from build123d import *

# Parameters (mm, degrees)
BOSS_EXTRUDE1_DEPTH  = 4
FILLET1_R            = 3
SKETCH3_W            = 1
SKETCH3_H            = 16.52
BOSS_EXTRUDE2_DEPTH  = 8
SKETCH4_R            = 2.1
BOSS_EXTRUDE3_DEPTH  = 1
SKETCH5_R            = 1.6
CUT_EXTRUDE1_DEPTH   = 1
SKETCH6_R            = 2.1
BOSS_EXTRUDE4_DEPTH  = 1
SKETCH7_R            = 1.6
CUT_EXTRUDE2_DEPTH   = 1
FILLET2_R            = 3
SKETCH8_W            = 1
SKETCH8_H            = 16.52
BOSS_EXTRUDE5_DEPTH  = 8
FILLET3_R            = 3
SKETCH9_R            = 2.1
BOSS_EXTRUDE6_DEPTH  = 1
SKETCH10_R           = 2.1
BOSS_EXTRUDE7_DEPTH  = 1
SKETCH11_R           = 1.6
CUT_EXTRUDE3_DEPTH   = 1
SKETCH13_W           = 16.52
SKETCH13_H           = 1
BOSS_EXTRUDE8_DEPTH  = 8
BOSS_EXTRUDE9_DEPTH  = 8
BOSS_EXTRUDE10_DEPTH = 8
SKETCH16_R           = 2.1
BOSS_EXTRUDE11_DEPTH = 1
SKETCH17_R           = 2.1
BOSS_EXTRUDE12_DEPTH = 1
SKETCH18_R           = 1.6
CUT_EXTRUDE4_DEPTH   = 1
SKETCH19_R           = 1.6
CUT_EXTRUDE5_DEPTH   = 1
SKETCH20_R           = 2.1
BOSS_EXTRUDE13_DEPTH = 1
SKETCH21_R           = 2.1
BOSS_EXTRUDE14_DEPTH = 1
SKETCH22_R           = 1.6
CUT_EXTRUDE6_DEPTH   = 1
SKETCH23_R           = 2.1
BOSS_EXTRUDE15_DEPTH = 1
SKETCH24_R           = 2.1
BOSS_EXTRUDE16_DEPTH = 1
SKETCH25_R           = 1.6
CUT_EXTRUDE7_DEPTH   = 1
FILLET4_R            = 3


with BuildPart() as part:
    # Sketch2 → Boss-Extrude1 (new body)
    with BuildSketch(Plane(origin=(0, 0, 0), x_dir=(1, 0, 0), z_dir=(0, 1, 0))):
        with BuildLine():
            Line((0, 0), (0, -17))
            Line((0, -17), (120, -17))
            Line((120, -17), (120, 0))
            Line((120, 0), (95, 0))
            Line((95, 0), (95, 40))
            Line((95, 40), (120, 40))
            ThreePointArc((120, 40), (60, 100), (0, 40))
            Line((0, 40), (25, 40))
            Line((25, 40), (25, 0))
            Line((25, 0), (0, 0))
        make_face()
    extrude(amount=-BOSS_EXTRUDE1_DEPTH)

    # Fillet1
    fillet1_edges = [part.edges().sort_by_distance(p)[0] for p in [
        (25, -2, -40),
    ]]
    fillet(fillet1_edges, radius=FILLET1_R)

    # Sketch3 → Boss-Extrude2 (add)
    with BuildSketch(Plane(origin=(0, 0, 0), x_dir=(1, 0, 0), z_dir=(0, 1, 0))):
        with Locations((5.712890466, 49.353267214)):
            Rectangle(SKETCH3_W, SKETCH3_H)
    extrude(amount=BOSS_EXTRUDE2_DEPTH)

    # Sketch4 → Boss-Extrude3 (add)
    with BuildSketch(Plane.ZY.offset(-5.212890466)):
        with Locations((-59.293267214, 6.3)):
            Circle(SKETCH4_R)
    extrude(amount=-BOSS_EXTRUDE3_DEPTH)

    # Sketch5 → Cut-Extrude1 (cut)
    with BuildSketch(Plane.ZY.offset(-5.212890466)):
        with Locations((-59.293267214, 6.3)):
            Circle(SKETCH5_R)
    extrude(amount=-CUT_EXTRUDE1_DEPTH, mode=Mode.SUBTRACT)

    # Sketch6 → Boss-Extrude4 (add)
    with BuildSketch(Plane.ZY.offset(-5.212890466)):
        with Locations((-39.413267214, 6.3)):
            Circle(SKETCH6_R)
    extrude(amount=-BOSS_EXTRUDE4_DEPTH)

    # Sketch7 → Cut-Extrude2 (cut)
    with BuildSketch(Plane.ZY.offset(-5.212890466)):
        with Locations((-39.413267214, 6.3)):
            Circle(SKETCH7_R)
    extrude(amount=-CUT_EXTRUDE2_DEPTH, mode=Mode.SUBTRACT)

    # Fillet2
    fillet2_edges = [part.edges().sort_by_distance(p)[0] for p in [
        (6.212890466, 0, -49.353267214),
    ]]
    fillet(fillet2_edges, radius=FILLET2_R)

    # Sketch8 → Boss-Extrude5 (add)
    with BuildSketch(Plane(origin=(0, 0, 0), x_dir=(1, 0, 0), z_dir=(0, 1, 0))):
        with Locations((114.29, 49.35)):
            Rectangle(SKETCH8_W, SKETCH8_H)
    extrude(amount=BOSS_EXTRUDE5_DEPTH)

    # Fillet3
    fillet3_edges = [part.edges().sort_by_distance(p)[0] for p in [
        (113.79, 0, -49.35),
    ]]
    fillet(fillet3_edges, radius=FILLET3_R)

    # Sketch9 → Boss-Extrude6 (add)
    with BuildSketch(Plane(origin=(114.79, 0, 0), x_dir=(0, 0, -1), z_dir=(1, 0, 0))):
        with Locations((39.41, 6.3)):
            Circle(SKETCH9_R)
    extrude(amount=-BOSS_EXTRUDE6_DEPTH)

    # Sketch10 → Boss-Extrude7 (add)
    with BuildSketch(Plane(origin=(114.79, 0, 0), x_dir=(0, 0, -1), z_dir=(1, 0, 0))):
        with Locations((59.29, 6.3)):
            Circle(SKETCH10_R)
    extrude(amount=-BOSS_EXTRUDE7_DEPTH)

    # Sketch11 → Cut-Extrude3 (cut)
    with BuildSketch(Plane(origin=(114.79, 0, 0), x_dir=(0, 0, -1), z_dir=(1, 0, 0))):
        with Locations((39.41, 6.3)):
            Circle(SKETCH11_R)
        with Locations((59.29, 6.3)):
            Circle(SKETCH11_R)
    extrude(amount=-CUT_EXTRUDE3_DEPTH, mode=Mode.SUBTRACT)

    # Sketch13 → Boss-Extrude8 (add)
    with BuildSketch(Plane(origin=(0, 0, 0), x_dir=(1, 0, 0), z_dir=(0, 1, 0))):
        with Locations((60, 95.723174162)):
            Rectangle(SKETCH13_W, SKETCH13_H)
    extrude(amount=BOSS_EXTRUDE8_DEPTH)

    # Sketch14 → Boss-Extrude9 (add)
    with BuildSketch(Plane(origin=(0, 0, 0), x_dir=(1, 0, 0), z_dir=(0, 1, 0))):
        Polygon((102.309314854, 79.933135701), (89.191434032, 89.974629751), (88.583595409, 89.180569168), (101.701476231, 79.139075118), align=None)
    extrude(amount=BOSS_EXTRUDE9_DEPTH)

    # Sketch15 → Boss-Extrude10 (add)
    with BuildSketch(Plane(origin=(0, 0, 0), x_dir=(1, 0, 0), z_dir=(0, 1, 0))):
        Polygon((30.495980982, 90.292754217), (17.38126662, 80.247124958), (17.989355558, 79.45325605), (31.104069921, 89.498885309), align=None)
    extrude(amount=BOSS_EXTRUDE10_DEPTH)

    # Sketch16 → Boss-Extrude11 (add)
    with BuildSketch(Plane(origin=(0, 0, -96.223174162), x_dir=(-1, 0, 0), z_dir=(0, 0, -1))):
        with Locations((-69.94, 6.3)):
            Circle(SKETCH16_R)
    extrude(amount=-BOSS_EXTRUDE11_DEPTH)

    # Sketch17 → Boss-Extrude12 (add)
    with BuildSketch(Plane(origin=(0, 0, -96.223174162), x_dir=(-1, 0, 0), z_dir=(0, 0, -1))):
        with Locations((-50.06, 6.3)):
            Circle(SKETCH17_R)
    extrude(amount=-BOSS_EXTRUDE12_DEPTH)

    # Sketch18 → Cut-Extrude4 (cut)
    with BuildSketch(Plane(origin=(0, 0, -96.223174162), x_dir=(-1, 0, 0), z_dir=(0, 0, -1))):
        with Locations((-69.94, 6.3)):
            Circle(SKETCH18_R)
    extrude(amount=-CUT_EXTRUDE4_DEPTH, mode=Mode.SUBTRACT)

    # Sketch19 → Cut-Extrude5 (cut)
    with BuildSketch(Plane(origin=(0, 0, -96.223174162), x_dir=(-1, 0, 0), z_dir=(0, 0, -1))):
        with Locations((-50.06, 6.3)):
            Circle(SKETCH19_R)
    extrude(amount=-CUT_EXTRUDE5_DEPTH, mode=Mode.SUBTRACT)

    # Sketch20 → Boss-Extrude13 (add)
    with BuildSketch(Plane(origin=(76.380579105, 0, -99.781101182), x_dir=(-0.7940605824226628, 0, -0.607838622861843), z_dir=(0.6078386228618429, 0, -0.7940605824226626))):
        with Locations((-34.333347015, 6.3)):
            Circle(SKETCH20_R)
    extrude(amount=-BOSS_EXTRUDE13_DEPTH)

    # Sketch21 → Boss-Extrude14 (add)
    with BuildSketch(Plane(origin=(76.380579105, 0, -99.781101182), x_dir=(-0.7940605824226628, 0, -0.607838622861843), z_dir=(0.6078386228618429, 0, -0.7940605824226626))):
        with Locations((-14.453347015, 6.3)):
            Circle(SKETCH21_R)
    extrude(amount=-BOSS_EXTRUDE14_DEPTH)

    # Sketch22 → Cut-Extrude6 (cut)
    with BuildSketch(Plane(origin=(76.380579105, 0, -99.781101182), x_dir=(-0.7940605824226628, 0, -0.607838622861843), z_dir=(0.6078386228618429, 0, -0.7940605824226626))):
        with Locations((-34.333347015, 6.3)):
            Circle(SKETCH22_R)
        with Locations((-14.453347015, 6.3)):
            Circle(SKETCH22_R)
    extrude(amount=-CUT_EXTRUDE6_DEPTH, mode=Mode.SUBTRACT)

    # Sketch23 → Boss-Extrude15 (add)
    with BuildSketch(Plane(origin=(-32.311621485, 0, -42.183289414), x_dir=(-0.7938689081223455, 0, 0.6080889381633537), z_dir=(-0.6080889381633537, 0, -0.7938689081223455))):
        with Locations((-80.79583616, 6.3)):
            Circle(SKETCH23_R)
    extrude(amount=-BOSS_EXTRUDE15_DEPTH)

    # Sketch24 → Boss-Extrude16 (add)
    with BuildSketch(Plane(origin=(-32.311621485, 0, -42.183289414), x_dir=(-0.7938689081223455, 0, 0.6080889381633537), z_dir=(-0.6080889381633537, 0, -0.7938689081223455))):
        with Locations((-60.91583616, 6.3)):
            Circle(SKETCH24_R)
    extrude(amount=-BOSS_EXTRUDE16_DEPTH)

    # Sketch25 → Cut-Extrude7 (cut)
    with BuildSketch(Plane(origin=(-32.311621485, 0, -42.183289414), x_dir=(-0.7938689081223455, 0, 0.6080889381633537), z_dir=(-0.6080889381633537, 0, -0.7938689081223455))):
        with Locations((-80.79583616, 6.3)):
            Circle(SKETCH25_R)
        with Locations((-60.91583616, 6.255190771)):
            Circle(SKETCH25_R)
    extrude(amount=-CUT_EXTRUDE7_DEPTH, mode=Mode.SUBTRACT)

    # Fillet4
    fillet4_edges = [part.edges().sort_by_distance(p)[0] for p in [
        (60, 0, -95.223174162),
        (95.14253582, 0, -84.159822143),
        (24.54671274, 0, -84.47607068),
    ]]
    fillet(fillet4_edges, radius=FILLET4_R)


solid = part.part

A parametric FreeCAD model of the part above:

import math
import FreeCAD as App
import Part
import Sketcher
from FreeCAD import Vector
Q = App.Units.Quantity


def edges_at(feature, points):
    """Names of the edges that pass closest to the given points."""
    edges = feature.Shape.Edges
    near = lambda p: min(range(len(edges)), key=lambda i: edges[i].distToShape(Part.Vertex(*p))[0])
    return sorted({f"Edge{near(p) + 1}" for p in points})

doc = App.newDocument("Part")
body = doc.addObject("PartDesign::Body", "Body")

# Sketch on XZ plane
sketch1 = doc.addObject("Sketcher::SketchObject", "Sketch")
body.addObject(sketch1)
sketch1.AttachmentSupport = (doc.XZ_Plane, [""])
sketch1.MapMode = "FlatFace"
sketch1.addGeometry([
    Part.LineSegment(Vector(0, 0, 0), Vector(0, 17, 0)),  # 0
    Part.LineSegment(Vector(0, 17, 0), Vector(120, 17, 0)),  # 1
    Part.LineSegment(Vector(120, 17, 0), Vector(120, 0, 0)),  # 2
    Part.LineSegment(Vector(120, 0, 0), Vector(95, 0, 0)),  # 3
    Part.LineSegment(Vector(95, 0, 0), Vector(95, -40, 0)),  # 4
    Part.LineSegment(Vector(95, -40, 0), Vector(120, -40, 0)),  # 5
    Part.ArcOfCircle(Part.Circle(Vector(60, -40, 0), Vector(0, 0, 1), 60), math.radians(180), math.radians(360)),  # 6
    Part.LineSegment(Vector(0, -40, 0), Vector(25, -40, 0)),  # 7
    Part.LineSegment(Vector(25, -40, 0), Vector(25, 0, 0)),  # 8
    Part.LineSegment(Vector(25, 0, 0), Vector(0, 0, 0)),  # 9
], False)
sketch1.addConstraint([
    Sketcher.Constraint("Coincident", 0, 2, 1, 1),
    Sketcher.Constraint("Coincident", 1, 2, 2, 1),
    Sketcher.Constraint("Coincident", 2, 2, 3, 1),
    Sketcher.Constraint("Coincident", 3, 2, 4, 1),
    Sketcher.Constraint("Coincident", 4, 2, 5, 1),
    Sketcher.Constraint("Coincident", 5, 2, 6, 2),
    Sketcher.Constraint("Coincident", 6, 1, 7, 1),
    Sketcher.Constraint("Coincident", 7, 2, 8, 1),
    Sketcher.Constraint("Coincident", 8, 2, 9, 1),
    Sketcher.Constraint("Coincident", 9, 2, 0, 1),
    Sketcher.Constraint("Vertical", 0),
    Sketcher.Constraint("Horizontal", 1),
    Sketcher.Constraint("Vertical", 2),
    Sketcher.Constraint("Horizontal", 3),
    Sketcher.Constraint("Vertical", 4),
    Sketcher.Constraint("Horizontal", 5),
    Sketcher.Constraint("Horizontal", 7),
    Sketcher.Constraint("Vertical", 8),
    Sketcher.Constraint("Horizontal", 9),
    Sketcher.Constraint("Coincident", 9, 2, -1, 1),
    Sketcher.Constraint("PointOnObject", 2, 2, -1),
    Sketcher.Constraint("PointOnObject", 6, 1, -2),
    Sketcher.Constraint("Horizontal", 6, 3, 4, 2),
    Sketcher.Constraint("Horizontal", 5, 2, 6, 1),
    Sketcher.Constraint("Vertical", 2, 2, 5, 2),
    Sketcher.Constraint("Equal", 5, 7),
    Sketcher.Constraint("Radius", 6, Q("60 mm")),
    Sketcher.Constraint("DistanceX", 3, 2, 3, 1, Q("25 mm")),
    Sketcher.Constraint("DistanceY", 0, 1, 0, 2, Q("17 mm")),
    Sketcher.Constraint("DistanceY", 4, 2, 4, 1, Q("40 mm")),
])
pad1 = doc.addObject("PartDesign::Pad", "Pad")
body.addObject(pad1)
pad1.Profile = sketch1
pad1.Length = 4
doc.recompute()

fillet = doc.addObject("PartDesign::Fillet", "Fillet")
body.addObject(fillet)
fillet.Base = (pad1, edges_at(pad1, [(25, -2, -40)]))
fillet.Radius = 3

# Sketch on XZ plane
sketch2 = doc.addObject("Sketcher::SketchObject", "Sketch001")
body.addObject(sketch2)
sketch2.AttachmentSupport = (doc.XZ_Plane, [""])
sketch2.MapMode = "FlatFace"
sketch2.addGeometry([
    Part.LineSegment(Vector(5.2, -57.6, 0), Vector(5.2, -41.1, 0)),
    Part.LineSegment(Vector(5.2, -41.1, 0), Vector(6.2, -41.1, 0)),
    Part.LineSegment(Vector(6.2, -41.1, 0), Vector(6.2, -57.6, 0)),
    Part.LineSegment(Vector(6.2, -57.6, 0), Vector(5.2, -57.6, 0)),
], False)
sketch2.addConstraint([
    Sketcher.Constraint("Coincident", 0, 2, 1, 1),
    Sketcher.Constraint("Coincident", 1, 2, 2, 1),
    Sketcher.Constraint("Coincident", 2, 2, 3, 1),
    Sketcher.Constraint("Coincident", 3, 2, 0, 1),
    Sketcher.Constraint("Vertical", 0),
    Sketcher.Constraint("Horizontal", 1),
    Sketcher.Constraint("Vertical", 2),
    Sketcher.Constraint("Horizontal", 3),
    Sketcher.Constraint("DistanceX", 1, 1, 1, 2, Q("1 mm")),
    Sketcher.Constraint("DistanceY", 0, 1, 0, 2, Q("16.52 mm")),
    Sketcher.Constraint("DistanceX", -1, 1, 0, 2, Q("5.21289 mm")),
    Sketcher.Constraint("DistanceY", 0, 2, -1, 1, Q("41.093267 mm")),
])
pad2 = doc.addObject("PartDesign::Pad", "Pad001")
body.addObject(pad2)
pad2.Profile = sketch2
pad2.Length = 8
pad2.Reversed = True

# Sketch on YZ plane
sketch3 = doc.addObject("Sketcher::SketchObject", "Sketch002")
body.addObject(sketch3)
sketch3.AttachmentSupport = (doc.YZ_Plane, [""])
sketch3.MapMode = "FlatFace"
sketch3.AttachmentOffset = App.Placement(Vector(0, 0, 5.21289), App.Rotation())
sketch3.addGeometry(Part.Circle(Vector(6.3, -59.3, 0), Vector(0, 0, 1), 2.1), False)
sketch3.addConstraint([
    Sketcher.Constraint("Diameter", 0, Q("4.2 mm")),
    Sketcher.Constraint("DistanceX", -1, 1, 0, 3, Q("6.3 mm")),
    Sketcher.Constraint("DistanceY", 0, 3, -1, 1, Q("59.293267 mm")),
])
pad3 = doc.addObject("PartDesign::Pad", "Pad002")
body.addObject(pad3)
pad3.Profile = sketch3
pad3.Length = 1

# Sketch on YZ plane
sketch4 = doc.addObject("Sketcher::SketchObject", "Sketch003")
body.addObject(sketch4)
sketch4.AttachmentSupport = (doc.YZ_Plane, [""])
sketch4.MapMode = "FlatFace"
sketch4.AttachmentOffset = App.Placement(Vector(0, 0, 5.21289), App.Rotation())
sketch4.addGeometry(Part.Circle(Vector(6.3, -59.3, 0), Vector(0, 0, 1), 1.6), False)
sketch4.addConstraint([
    Sketcher.Constraint("Diameter", 0, Q("3.2 mm")),
    Sketcher.Constraint("DistanceX", -1, 1, 0, 3, Q("6.3 mm")),
    Sketcher.Constraint("DistanceY", 0, 3, -1, 1, Q("59.293267 mm")),
])
pocket1 = doc.addObject("PartDesign::Pocket", "Pocket")
body.addObject(pocket1)
pocket1.Profile = sketch4
pocket1.Length = 1
pocket1.Reversed = True

# Sketch on YZ plane
sketch5 = doc.addObject("Sketcher::SketchObject", "Sketch004")
body.addObject(sketch5)
sketch5.AttachmentSupport = (doc.YZ_Plane, [""])
sketch5.MapMode = "FlatFace"
sketch5.AttachmentOffset = App.Placement(Vector(0, 0, 5.21289), App.Rotation())
sketch5.addGeometry(Part.Circle(Vector(6.3, -39.4, 0), Vector(0, 0, 1), 2.1), False)
sketch5.addConstraint([
    Sketcher.Constraint("Diameter", 0, Q("4.2 mm")),
    Sketcher.Constraint("DistanceX", -1, 1, 0, 3, Q("6.3 mm")),
    Sketcher.Constraint("DistanceY", 0, 3, -1, 1, Q("39.413267 mm")),
])
pad4 = doc.addObject("PartDesign::Pad", "Pad003")
body.addObject(pad4)
pad4.Profile = sketch5
pad4.Length = 1

# Sketch on YZ plane
sketch6 = doc.addObject("Sketcher::SketchObject", "Sketch005")
body.addObject(sketch6)
sketch6.AttachmentSupport = (doc.YZ_Plane, [""])
sketch6.MapMode = "FlatFace"
sketch6.AttachmentOffset = App.Placement(Vector(0, 0, 5.21289), App.Rotation())
sketch6.addGeometry(Part.Circle(Vector(6.3, -39.4, 0), Vector(0, 0, 1), 1.6), False)
sketch6.addConstraint([
    Sketcher.Constraint("Diameter", 0, Q("3.2 mm")),
    Sketcher.Constraint("DistanceX", -1, 1, 0, 3, Q("6.3 mm")),
    Sketcher.Constraint("DistanceY", 0, 3, -1, 1, Q("39.413267 mm")),
])
pocket2 = doc.addObject("PartDesign::Pocket", "Pocket001")
body.addObject(pocket2)
pocket2.Profile = sketch6
pocket2.Length = 1
pocket2.Reversed = True
doc.recompute()

fillet2 = doc.addObject("PartDesign::Fillet", "Fillet001")
body.addObject(fillet2)
fillet2.Base = (pocket2, edges_at(pocket2, [(6.213, 0, -49.353)]))
fillet2.Radius = 3

# Sketch on XZ plane
sketch7 = doc.addObject("Sketcher::SketchObject", "Sketch006")
body.addObject(sketch7)
sketch7.AttachmentSupport = (doc.XZ_Plane, [""])
sketch7.MapMode = "FlatFace"
sketch7.addGeometry([
    Part.LineSegment(Vector(113.8, -57.6, 0), Vector(113.8, -41.1, 0)),
    Part.LineSegment(Vector(113.8, -41.1, 0), Vector(114.8, -41.1, 0)),
    Part.LineSegment(Vector(114.8, -41.1, 0), Vector(114.8, -57.6, 0)),
    Part.LineSegment(Vector(114.8, -57.6, 0), Vector(113.8, -57.6, 0)),
], False)
sketch7.addConstraint([
    Sketcher.Constraint("Coincident", 0, 2, 1, 1),
    Sketcher.Constraint("Coincident", 1, 2, 2, 1),
    Sketcher.Constraint("Coincident", 2, 2, 3, 1),
    Sketcher.Constraint("Coincident", 3, 2, 0, 1),
    Sketcher.Constraint("Vertical", 0),
    Sketcher.Constraint("Horizontal", 1),
    Sketcher.Constraint("Vertical", 2),
    Sketcher.Constraint("Horizontal", 3),
    Sketcher.Constraint("DistanceX", 1, 1, 1, 2, Q("1 mm")),
    Sketcher.Constraint("DistanceY", 0, 1, 0, 2, Q("16.52 mm")),
    Sketcher.Constraint("DistanceX", -1, 1, 0, 2, Q("113.79 mm")),
    Sketcher.Constraint("DistanceY", 0, 2, -1, 1, Q("41.09 mm")),
])
pad5 = doc.addObject("PartDesign::Pad", "Pad004")
body.addObject(pad5)
pad5.Profile = sketch7
pad5.Length = 8
pad5.Reversed = True
doc.recompute()

fillet3 = doc.addObject("PartDesign::Fillet", "Fillet002")
body.addObject(fillet3)
fillet3.Base = (pad5, edges_at(pad5, [(113.79, 0, -49.35)]))
fillet3.Radius = 3

# Sketch on YZ plane
sketch8 = doc.addObject("Sketcher::SketchObject", "Sketch007")
body.addObject(sketch8)
sketch8.AttachmentSupport = (doc.YZ_Plane, [""])
sketch8.MapMode = "FlatFace"
sketch8.AttachmentOffset = App.Placement(Vector(0, 0, 114.79), App.Rotation())
sketch8.addGeometry(Part.Circle(Vector(6.3, -39.4, 0), Vector(0, 0, 1), 2.1), False)
sketch8.addConstraint([
    Sketcher.Constraint("Diameter", 0, Q("4.2 mm")),
    Sketcher.Constraint("DistanceX", -1, 1, 0, 3, Q("6.3 mm")),
    Sketcher.Constraint("DistanceY", 0, 3, -1, 1, Q("39.41 mm")),
])
pad6 = doc.addObject("PartDesign::Pad", "Pad005")
body.addObject(pad6)
pad6.Profile = sketch8
pad6.Length = 1
pad6.Reversed = True

# Sketch on YZ plane
sketch9 = doc.addObject("Sketcher::SketchObject", "Sketch008")
body.addObject(sketch9)
sketch9.AttachmentSupport = (doc.YZ_Plane, [""])
sketch9.MapMode = "FlatFace"
sketch9.AttachmentOffset = App.Placement(Vector(0, 0, 114.79), App.Rotation())
sketch9.addGeometry(Part.Circle(Vector(6.3, -59.3, 0), Vector(0, 0, 1), 2.1), False)
sketch9.addConstraint([
    Sketcher.Constraint("Diameter", 0, Q("4.2 mm")),
    Sketcher.Constraint("DistanceX", -1, 1, 0, 3, Q("6.3 mm")),
    Sketcher.Constraint("DistanceY", 0, 3, -1, 1, Q("59.29 mm")),
])
pad7 = doc.addObject("PartDesign::Pad", "Pad006")
body.addObject(pad7)
pad7.Profile = sketch9
pad7.Length = 1
pad7.Reversed = True

# Sketch on YZ plane
sketch10 = doc.addObject("Sketcher::SketchObject", "Sketch009")
body.addObject(sketch10)
sketch10.AttachmentSupport = (doc.YZ_Plane, [""])
sketch10.MapMode = "FlatFace"
sketch10.AttachmentOffset = App.Placement(Vector(0, 0, 114.79), App.Rotation())
sketch10.addGeometry([
    Part.Circle(Vector(6.3, -39.4, 0), Vector(0, 0, 1), 1.6),
    Part.Circle(Vector(6.3, -59.3, 0), Vector(0, 0, 1), 1.6),
], False)
sketch10.addConstraint([
    Sketcher.Constraint("Equal", 0, 1),
    Sketcher.Constraint("Vertical", 0, 3, 1, 3),
    Sketcher.Constraint("Diameter", 0, Q("3.2 mm")),
    Sketcher.Constraint("DistanceX", -1, 1, 0, 3, Q("6.3 mm")),
    Sketcher.Constraint("DistanceY", 0, 3, -1, 1, Q("39.41 mm")),
    Sketcher.Constraint("DistanceY", 1, 3, -1, 1, Q("59.29 mm")),
])
pocket3 = doc.addObject("PartDesign::Pocket", "Pocket002")
body.addObject(pocket3)
pocket3.Profile = sketch10
pocket3.Length = 1

# Sketch on XZ plane
sketch11 = doc.addObject("Sketcher::SketchObject", "Sketch010")
body.addObject(sketch11)
sketch11.AttachmentSupport = (doc.XZ_Plane, [""])
sketch11.MapMode = "FlatFace"
sketch11.addGeometry([
    Part.LineSegment(Vector(51.7, -96.2, 0), Vector(51.7, -95.2, 0)),
    Part.LineSegment(Vector(51.7, -95.2, 0), Vector(68.3, -95.2, 0)),
    Part.LineSegment(Vector(68.3, -95.2, 0), Vector(68.3, -96.2, 0)),
    Part.LineSegment(Vector(68.3, -96.2, 0), Vector(51.7, -96.2, 0)),
], False)
sketch11.addConstraint([
    Sketcher.Constraint("Coincident", 0, 2, 1, 1),
    Sketcher.Constraint("Coincident", 1, 2, 2, 1),
    Sketcher.Constraint("Coincident", 2, 2, 3, 1),
    Sketcher.Constraint("Coincident", 3, 2, 0, 1),
    Sketcher.Constraint("Vertical", 0),
    Sketcher.Constraint("Horizontal", 1),
    Sketcher.Constraint("Vertical", 2),
    Sketcher.Constraint("Horizontal", 3),
    Sketcher.Constraint("DistanceY", 0, 1, 0, 2, Q("1 mm")),
    Sketcher.Constraint("DistanceX", 1, 1, 1, 2, Q("16.52 mm")),
    Sketcher.Constraint("DistanceX", -1, 1, 0, 2, Q("51.74 mm")),
    Sketcher.Constraint("DistanceY", 0, 2, -1, 1, Q("95.223174 mm")),
])
pad8 = doc.addObject("PartDesign::Pad", "Pad007")
body.addObject(pad8)
pad8.Profile = sketch11
pad8.Length = 8
pad8.Reversed = True

# Sketch on XZ plane
sketch12 = doc.addObject("Sketcher::SketchObject", "Sketch011")
body.addObject(sketch12)
sketch12.AttachmentSupport = (doc.XZ_Plane, [""])
sketch12.MapMode = "FlatFace"
sketch12.addGeometry([
    Part.LineSegment(Vector(102.3, -79.9, 0), Vector(89.2, -90, 0)),
    Part.LineSegment(Vector(89.2, -90, 0), Vector(88.6, -89.2, 0)),
    Part.LineSegment(Vector(88.6, -89.2, 0), Vector(101.7, -79.1, 0)),
    Part.LineSegment(Vector(101.7, -79.1, 0), Vector(102.3, -79.9, 0)),
], False)
sketch12.addConstraint([
    Sketcher.Constraint("Coincident", 0, 2, 1, 1),
    Sketcher.Constraint("Coincident", 1, 2, 2, 1),
    Sketcher.Constraint("Coincident", 2, 2, 3, 1),
    Sketcher.Constraint("Coincident", 3, 2, 0, 1),
    Sketcher.Constraint("Perpendicular", 0, 1),
    Sketcher.Constraint("Perpendicular", 1, 2),
    Sketcher.Constraint("Perpendicular", 2, 3),
    Sketcher.Constraint("Distance", 1, Q("1 mm")),
    Sketcher.Constraint("Distance", 0, Q("16.52 mm")),
    Sketcher.Constraint("DistanceY", 0, 2, -1, 1, Q("89.97463 mm")),
    Sketcher.Constraint("DistanceY", 1, 2, -1, 1, Q("89.180569 mm")),
    Sketcher.Constraint("DistanceX", -1, 1, 0, 2, Q("89.191434 mm")),
])
pad9 = doc.addObject("PartDesign::Pad", "Pad008")
body.addObject(pad9)
pad9.Profile = sketch12
pad9.Length = 8
pad9.Reversed = True

# Sketch on XZ plane
sketch13 = doc.addObject("Sketcher::SketchObject", "Sketch012")
body.addObject(sketch13)
sketch13.AttachmentSupport = (doc.XZ_Plane, [""])
sketch13.MapMode = "FlatFace"
sketch13.addGeometry([
    Part.LineSegment(Vector(30.5, -90.3, 0), Vector(17.4, -80.2, 0)),
    Part.LineSegment(Vector(17.4, -80.2, 0), Vector(18, -79.5, 0)),
    Part.LineSegment(Vector(18, -79.5, 0), Vector(31.1, -89.5, 0)),
    Part.LineSegment(Vector(31.1, -89.5, 0), Vector(30.5, -90.3, 0)),
], False)
sketch13.addConstraint([
    Sketcher.Constraint("Coincident", 0, 2, 1, 1),
    Sketcher.Constraint("Coincident", 1, 2, 2, 1),
    Sketcher.Constraint("Coincident", 2, 2, 3, 1),
    Sketcher.Constraint("Coincident", 3, 2, 0, 1),
    Sketcher.Constraint("Perpendicular", 0, 1),
    Sketcher.Constraint("Perpendicular", 1, 2),
    Sketcher.Constraint("Perpendicular", 2, 3),
    Sketcher.Constraint("Distance", 1, Q("1 mm")),
    Sketcher.Constraint("Distance", 0, Q("16.52 mm")),
    Sketcher.Constraint("DistanceY", 3, 2, 1, 2, Q("10.839498 mm")),
    Sketcher.Constraint("DistanceX", -1, 1, 2, 2, Q("31.10407 mm")),
    Sketcher.Constraint("DistanceY", 0, 2, -1, 1, Q("80.247125 mm")),
])
pad10 = doc.addObject("PartDesign::Pad", "Pad009")
body.addObject(pad10)
pad10.Profile = sketch13
pad10.Length = 8
pad10.Reversed = True

# Sketch on XY plane
sketch14 = doc.addObject("Sketcher::SketchObject", "Sketch013")
body.addObject(sketch14)
sketch14.AttachmentSupport = (doc.XY_Plane, [""])
sketch14.MapMode = "FlatFace"
sketch14.AttachmentOffset = App.Placement(Vector(0, 0, -96.223174), App.Rotation())
sketch14.addGeometry(Part.Circle(Vector(69.9, 6.3, 0), Vector(0, 0, 1), 2.1), False)
sketch14.addConstraint([
    Sketcher.Constraint("Diameter", 0, Q("4.2 mm")),
    Sketcher.Constraint("DistanceY", -1, 1, 0, 3, Q("6.3 mm")),
    Sketcher.Constraint("DistanceX", -1, 1, 0, 3, Q("69.94 mm")),
])
pad11 = doc.addObject("PartDesign::Pad", "Pad010")
body.addObject(pad11)
pad11.Profile = sketch14
pad11.Length = 1

# Sketch on XY plane
sketch15 = doc.addObject("Sketcher::SketchObject", "Sketch014")
body.addObject(sketch15)
sketch15.AttachmentSupport = (doc.XY_Plane, [""])
sketch15.MapMode = "FlatFace"
sketch15.AttachmentOffset = App.Placement(Vector(0, 0, -96.223174), App.Rotation())
sketch15.addGeometry(Part.Circle(Vector(50.1, 6.3, 0), Vector(0, 0, 1), 2.1), False)
sketch15.addConstraint([
    Sketcher.Constraint("Diameter", 0, Q("4.2 mm")),
    Sketcher.Constraint("DistanceY", -1, 1, 0, 3, Q("6.3 mm")),
    Sketcher.Constraint("DistanceX", -1, 1, 0, 3, Q("50.06 mm")),
])
pad12 = doc.addObject("PartDesign::Pad", "Pad011")
body.addObject(pad12)
pad12.Profile = sketch15
pad12.Length = 1

# Sketch on XY plane
sketch16 = doc.addObject("Sketcher::SketchObject", "Sketch015")
body.addObject(sketch16)
sketch16.AttachmentSupport = (doc.XY_Plane, [""])
sketch16.MapMode = "FlatFace"
sketch16.AttachmentOffset = App.Placement(Vector(0, 0, -96.223174), App.Rotation())
sketch16.addGeometry(Part.Circle(Vector(69.9, 6.3, 0), Vector(0, 0, 1), 1.6), False)
sketch16.addConstraint([
    Sketcher.Constraint("Diameter", 0, Q("3.2 mm")),
    Sketcher.Constraint("DistanceY", -1, 1, 0, 3, Q("6.3 mm")),
    Sketcher.Constraint("DistanceX", -1, 1, 0, 3, Q("69.94 mm")),
])
pocket4 = doc.addObject("PartDesign::Pocket", "Pocket003")
body.addObject(pocket4)
pocket4.Profile = sketch16
pocket4.Length = 1
pocket4.Reversed = True

# Sketch on XY plane
sketch17 = doc.addObject("Sketcher::SketchObject", "Sketch016")
body.addObject(sketch17)
sketch17.AttachmentSupport = (doc.XY_Plane, [""])
sketch17.MapMode = "FlatFace"
sketch17.AttachmentOffset = App.Placement(Vector(0, 0, -96.223174), App.Rotation())
sketch17.addGeometry(Part.Circle(Vector(50.1, 6.3, 0), Vector(0, 0, 1), 1.6), False)
sketch17.addConstraint([
    Sketcher.Constraint("Diameter", 0, Q("3.2 mm")),
    Sketcher.Constraint("DistanceY", -1, 1, 0, 3, Q("6.3 mm")),
    Sketcher.Constraint("DistanceX", -1, 1, 0, 3, Q("50.06 mm")),
])
pocket5 = doc.addObject("PartDesign::Pocket", "Pocket004")
body.addObject(pocket5)
pocket5.Profile = sketch17
pocket5.Length = 1
pocket5.Reversed = True

# Sketch on an angled plane
sketch18 = doc.addObject("Sketcher::SketchObject", "Sketch017")
body.addObject(sketch18)
sketch18.Placement = App.Placement(Vector(76.380579, 0, -99.781101), App.Rotation(Vector(-0.794060582, 0, -0.607838623), Vector(0, 0.999999999, 0), Vector(0.607838623, 0, -0.794060582), "ZXY"))
sketch18.addGeometry(Part.Circle(Vector(-34.3, 6.3, 0), Vector(0, 0, 1), 2.1), False)
sketch18.addConstraint([
    Sketcher.Constraint("Diameter", 0, Q("4.2 mm")),
    Sketcher.Constraint("DistanceY", -1, 1, 0, 3, Q("6.3 mm")),
    Sketcher.Constraint("DistanceX", 0, 3, -1, 1, Q("34.333347 mm")),
])
pad13 = doc.addObject("PartDesign::Pad", "Pad012")
body.addObject(pad13)
pad13.Profile = sketch18
pad13.Length = 1
pad13.Reversed = True

# Sketch on an angled plane
sketch19 = doc.addObject("Sketcher::SketchObject", "Sketch018")
body.addObject(sketch19)
sketch19.Placement = App.Placement(Vector(76.380579, 0, -99.781101), App.Rotation(Vector(-0.794060582, 0, -0.607838623), Vector(0, 0.999999999, 0), Vector(0.607838623, 0, -0.794060582), "ZXY"))
sketch19.addGeometry(Part.Circle(Vector(-14.5, 6.3, 0), Vector(0, 0, 1), 2.1), False)
sketch19.addConstraint([
    Sketcher.Constraint("Diameter", 0, Q("4.2 mm")),
    Sketcher.Constraint("DistanceY", -1, 1, 0, 3, Q("6.3 mm")),
    Sketcher.Constraint("DistanceX", 0, 3, -1, 1, Q("14.453347 mm")),
])
pad14 = doc.addObject("PartDesign::Pad", "Pad013")
body.addObject(pad14)
pad14.Profile = sketch19
pad14.Length = 1
pad14.Reversed = True

# Sketch on an angled plane
sketch20 = doc.addObject("Sketcher::SketchObject", "Sketch019")
body.addObject(sketch20)
sketch20.Placement = App.Placement(Vector(76.380579, 0, -99.781101), App.Rotation(Vector(-0.794060582, 0, -0.607838623), Vector(0, 0.999999999, 0), Vector(0.607838623, 0, -0.794060582), "ZXY"))
sketch20.addGeometry([
    Part.Circle(Vector(-34.3, 6.3, 0), Vector(0, 0, 1), 1.6),
    Part.Circle(Vector(-14.5, 6.3, 0), Vector(0, 0, 1), 1.6),
], False)
sketch20.addConstraint([
    Sketcher.Constraint("Equal", 0, 1),
    Sketcher.Constraint("Horizontal", 0, 3, 1, 3),
    Sketcher.Constraint("Diameter", 0, Q("3.2 mm")),
    Sketcher.Constraint("DistanceY", -1, 1, 0, 3, Q("6.3 mm")),
    Sketcher.Constraint("DistanceX", 0, 3, 1, 3, Q("19.88 mm")),
    Sketcher.Constraint("DistanceX", 0, 3, -1, 1, Q("34.333347 mm")),
])
pocket6 = doc.addObject("PartDesign::Pocket", "Pocket005")
body.addObject(pocket6)
pocket6.Profile = sketch20
pocket6.Length = 1

# Sketch on an angled plane
sketch21 = doc.addObject("Sketcher::SketchObject", "Sketch020")
body.addObject(sketch21)
sketch21.Placement = App.Placement(Vector(-32.311621, 0, -42.183289), App.Rotation(Vector(-0.793868908, 0, 0.608088938), Vector(0, 1, 0), Vector(-0.608088938, 0, -0.793868908), "ZXY"))
sketch21.addGeometry(Part.Circle(Vector(-80.8, 6.3, 0), Vector(0, 0, 1), 2.1), False)
sketch21.addConstraint([
    Sketcher.Constraint("Diameter", 0, Q("4.2 mm")),
    Sketcher.Constraint("DistanceY", -1, 1, 0, 3, Q("6.3 mm")),
    Sketcher.Constraint("DistanceX", 0, 3, -1, 1, Q("80.795836 mm")),
])
pad15 = doc.addObject("PartDesign::Pad", "Pad014")
body.addObject(pad15)
pad15.Profile = sketch21
pad15.Length = 1
pad15.Reversed = True

# Sketch on an angled plane
sketch22 = doc.addObject("Sketcher::SketchObject", "Sketch021")
body.addObject(sketch22)
sketch22.Placement = App.Placement(Vector(-32.311621, 0, -42.183289), App.Rotation(Vector(-0.793868908, 0, 0.608088938), Vector(0, 1, 0), Vector(-0.608088938, 0, -0.793868908), "ZXY"))
sketch22.addGeometry(Part.Circle(Vector(-60.9, 6.3, 0), Vector(0, 0, 1), 2.1), False)
sketch22.addConstraint([
    Sketcher.Constraint("Diameter", 0, Q("4.2 mm")),
    Sketcher.Constraint("DistanceY", -1, 1, 0, 3, Q("6.3 mm")),
    Sketcher.Constraint("DistanceX", 0, 3, -1, 1, Q("60.915836 mm")),
])
pad16 = doc.addObject("PartDesign::Pad", "Pad015")
body.addObject(pad16)
pad16.Profile = sketch22
pad16.Length = 1
pad16.Reversed = True

# Sketch on an angled plane
sketch23 = doc.addObject("Sketcher::SketchObject", "Sketch022")
body.addObject(sketch23)
sketch23.Placement = App.Placement(Vector(-32.311621, 0, -42.183289), App.Rotation(Vector(-0.793868908, 0, 0.608088938), Vector(0, 1, 0), Vector(-0.608088938, 0, -0.793868908), "ZXY"))
sketch23.addGeometry([
    Part.Circle(Vector(-80.8, 6.3, 0), Vector(0, 0, 1), 1.6),
    Part.Circle(Vector(-60.9, 6.3, 0), Vector(0, 0, 1), 1.6),
], False)
sketch23.addConstraint([
    Sketcher.Constraint("Equal", 0, 1),
    Sketcher.Constraint("Diameter", 0, Q("3.2 mm")),
    Sketcher.Constraint("DistanceY", -1, 1, 0, 3, Q("6.3 mm")),
    Sketcher.Constraint("DistanceX", 0, 3, 1, 3, Q("19.88 mm")),
    Sketcher.Constraint("DistanceY", -1, 1, 1, 3, Q("6.255191 mm")),
    Sketcher.Constraint("DistanceX", 0, 3, -1, 1, Q("80.795836 mm")),
])
pocket7 = doc.addObject("PartDesign::Pocket", "Pocket006")
body.addObject(pocket7)
pocket7.Profile = sketch23
pocket7.Length = 1
doc.recompute()

fillet4 = doc.addObject("PartDesign::Fillet", "Fillet003")
body.addObject(fillet4)
fillet4.Base = (pocket7, edges_at(pocket7, [(60, 0, -95.223), (95.143, 0, -84.16), (24.547, 0, -84.476)]))
fillet4.Radius = 3

doc.recompute()
